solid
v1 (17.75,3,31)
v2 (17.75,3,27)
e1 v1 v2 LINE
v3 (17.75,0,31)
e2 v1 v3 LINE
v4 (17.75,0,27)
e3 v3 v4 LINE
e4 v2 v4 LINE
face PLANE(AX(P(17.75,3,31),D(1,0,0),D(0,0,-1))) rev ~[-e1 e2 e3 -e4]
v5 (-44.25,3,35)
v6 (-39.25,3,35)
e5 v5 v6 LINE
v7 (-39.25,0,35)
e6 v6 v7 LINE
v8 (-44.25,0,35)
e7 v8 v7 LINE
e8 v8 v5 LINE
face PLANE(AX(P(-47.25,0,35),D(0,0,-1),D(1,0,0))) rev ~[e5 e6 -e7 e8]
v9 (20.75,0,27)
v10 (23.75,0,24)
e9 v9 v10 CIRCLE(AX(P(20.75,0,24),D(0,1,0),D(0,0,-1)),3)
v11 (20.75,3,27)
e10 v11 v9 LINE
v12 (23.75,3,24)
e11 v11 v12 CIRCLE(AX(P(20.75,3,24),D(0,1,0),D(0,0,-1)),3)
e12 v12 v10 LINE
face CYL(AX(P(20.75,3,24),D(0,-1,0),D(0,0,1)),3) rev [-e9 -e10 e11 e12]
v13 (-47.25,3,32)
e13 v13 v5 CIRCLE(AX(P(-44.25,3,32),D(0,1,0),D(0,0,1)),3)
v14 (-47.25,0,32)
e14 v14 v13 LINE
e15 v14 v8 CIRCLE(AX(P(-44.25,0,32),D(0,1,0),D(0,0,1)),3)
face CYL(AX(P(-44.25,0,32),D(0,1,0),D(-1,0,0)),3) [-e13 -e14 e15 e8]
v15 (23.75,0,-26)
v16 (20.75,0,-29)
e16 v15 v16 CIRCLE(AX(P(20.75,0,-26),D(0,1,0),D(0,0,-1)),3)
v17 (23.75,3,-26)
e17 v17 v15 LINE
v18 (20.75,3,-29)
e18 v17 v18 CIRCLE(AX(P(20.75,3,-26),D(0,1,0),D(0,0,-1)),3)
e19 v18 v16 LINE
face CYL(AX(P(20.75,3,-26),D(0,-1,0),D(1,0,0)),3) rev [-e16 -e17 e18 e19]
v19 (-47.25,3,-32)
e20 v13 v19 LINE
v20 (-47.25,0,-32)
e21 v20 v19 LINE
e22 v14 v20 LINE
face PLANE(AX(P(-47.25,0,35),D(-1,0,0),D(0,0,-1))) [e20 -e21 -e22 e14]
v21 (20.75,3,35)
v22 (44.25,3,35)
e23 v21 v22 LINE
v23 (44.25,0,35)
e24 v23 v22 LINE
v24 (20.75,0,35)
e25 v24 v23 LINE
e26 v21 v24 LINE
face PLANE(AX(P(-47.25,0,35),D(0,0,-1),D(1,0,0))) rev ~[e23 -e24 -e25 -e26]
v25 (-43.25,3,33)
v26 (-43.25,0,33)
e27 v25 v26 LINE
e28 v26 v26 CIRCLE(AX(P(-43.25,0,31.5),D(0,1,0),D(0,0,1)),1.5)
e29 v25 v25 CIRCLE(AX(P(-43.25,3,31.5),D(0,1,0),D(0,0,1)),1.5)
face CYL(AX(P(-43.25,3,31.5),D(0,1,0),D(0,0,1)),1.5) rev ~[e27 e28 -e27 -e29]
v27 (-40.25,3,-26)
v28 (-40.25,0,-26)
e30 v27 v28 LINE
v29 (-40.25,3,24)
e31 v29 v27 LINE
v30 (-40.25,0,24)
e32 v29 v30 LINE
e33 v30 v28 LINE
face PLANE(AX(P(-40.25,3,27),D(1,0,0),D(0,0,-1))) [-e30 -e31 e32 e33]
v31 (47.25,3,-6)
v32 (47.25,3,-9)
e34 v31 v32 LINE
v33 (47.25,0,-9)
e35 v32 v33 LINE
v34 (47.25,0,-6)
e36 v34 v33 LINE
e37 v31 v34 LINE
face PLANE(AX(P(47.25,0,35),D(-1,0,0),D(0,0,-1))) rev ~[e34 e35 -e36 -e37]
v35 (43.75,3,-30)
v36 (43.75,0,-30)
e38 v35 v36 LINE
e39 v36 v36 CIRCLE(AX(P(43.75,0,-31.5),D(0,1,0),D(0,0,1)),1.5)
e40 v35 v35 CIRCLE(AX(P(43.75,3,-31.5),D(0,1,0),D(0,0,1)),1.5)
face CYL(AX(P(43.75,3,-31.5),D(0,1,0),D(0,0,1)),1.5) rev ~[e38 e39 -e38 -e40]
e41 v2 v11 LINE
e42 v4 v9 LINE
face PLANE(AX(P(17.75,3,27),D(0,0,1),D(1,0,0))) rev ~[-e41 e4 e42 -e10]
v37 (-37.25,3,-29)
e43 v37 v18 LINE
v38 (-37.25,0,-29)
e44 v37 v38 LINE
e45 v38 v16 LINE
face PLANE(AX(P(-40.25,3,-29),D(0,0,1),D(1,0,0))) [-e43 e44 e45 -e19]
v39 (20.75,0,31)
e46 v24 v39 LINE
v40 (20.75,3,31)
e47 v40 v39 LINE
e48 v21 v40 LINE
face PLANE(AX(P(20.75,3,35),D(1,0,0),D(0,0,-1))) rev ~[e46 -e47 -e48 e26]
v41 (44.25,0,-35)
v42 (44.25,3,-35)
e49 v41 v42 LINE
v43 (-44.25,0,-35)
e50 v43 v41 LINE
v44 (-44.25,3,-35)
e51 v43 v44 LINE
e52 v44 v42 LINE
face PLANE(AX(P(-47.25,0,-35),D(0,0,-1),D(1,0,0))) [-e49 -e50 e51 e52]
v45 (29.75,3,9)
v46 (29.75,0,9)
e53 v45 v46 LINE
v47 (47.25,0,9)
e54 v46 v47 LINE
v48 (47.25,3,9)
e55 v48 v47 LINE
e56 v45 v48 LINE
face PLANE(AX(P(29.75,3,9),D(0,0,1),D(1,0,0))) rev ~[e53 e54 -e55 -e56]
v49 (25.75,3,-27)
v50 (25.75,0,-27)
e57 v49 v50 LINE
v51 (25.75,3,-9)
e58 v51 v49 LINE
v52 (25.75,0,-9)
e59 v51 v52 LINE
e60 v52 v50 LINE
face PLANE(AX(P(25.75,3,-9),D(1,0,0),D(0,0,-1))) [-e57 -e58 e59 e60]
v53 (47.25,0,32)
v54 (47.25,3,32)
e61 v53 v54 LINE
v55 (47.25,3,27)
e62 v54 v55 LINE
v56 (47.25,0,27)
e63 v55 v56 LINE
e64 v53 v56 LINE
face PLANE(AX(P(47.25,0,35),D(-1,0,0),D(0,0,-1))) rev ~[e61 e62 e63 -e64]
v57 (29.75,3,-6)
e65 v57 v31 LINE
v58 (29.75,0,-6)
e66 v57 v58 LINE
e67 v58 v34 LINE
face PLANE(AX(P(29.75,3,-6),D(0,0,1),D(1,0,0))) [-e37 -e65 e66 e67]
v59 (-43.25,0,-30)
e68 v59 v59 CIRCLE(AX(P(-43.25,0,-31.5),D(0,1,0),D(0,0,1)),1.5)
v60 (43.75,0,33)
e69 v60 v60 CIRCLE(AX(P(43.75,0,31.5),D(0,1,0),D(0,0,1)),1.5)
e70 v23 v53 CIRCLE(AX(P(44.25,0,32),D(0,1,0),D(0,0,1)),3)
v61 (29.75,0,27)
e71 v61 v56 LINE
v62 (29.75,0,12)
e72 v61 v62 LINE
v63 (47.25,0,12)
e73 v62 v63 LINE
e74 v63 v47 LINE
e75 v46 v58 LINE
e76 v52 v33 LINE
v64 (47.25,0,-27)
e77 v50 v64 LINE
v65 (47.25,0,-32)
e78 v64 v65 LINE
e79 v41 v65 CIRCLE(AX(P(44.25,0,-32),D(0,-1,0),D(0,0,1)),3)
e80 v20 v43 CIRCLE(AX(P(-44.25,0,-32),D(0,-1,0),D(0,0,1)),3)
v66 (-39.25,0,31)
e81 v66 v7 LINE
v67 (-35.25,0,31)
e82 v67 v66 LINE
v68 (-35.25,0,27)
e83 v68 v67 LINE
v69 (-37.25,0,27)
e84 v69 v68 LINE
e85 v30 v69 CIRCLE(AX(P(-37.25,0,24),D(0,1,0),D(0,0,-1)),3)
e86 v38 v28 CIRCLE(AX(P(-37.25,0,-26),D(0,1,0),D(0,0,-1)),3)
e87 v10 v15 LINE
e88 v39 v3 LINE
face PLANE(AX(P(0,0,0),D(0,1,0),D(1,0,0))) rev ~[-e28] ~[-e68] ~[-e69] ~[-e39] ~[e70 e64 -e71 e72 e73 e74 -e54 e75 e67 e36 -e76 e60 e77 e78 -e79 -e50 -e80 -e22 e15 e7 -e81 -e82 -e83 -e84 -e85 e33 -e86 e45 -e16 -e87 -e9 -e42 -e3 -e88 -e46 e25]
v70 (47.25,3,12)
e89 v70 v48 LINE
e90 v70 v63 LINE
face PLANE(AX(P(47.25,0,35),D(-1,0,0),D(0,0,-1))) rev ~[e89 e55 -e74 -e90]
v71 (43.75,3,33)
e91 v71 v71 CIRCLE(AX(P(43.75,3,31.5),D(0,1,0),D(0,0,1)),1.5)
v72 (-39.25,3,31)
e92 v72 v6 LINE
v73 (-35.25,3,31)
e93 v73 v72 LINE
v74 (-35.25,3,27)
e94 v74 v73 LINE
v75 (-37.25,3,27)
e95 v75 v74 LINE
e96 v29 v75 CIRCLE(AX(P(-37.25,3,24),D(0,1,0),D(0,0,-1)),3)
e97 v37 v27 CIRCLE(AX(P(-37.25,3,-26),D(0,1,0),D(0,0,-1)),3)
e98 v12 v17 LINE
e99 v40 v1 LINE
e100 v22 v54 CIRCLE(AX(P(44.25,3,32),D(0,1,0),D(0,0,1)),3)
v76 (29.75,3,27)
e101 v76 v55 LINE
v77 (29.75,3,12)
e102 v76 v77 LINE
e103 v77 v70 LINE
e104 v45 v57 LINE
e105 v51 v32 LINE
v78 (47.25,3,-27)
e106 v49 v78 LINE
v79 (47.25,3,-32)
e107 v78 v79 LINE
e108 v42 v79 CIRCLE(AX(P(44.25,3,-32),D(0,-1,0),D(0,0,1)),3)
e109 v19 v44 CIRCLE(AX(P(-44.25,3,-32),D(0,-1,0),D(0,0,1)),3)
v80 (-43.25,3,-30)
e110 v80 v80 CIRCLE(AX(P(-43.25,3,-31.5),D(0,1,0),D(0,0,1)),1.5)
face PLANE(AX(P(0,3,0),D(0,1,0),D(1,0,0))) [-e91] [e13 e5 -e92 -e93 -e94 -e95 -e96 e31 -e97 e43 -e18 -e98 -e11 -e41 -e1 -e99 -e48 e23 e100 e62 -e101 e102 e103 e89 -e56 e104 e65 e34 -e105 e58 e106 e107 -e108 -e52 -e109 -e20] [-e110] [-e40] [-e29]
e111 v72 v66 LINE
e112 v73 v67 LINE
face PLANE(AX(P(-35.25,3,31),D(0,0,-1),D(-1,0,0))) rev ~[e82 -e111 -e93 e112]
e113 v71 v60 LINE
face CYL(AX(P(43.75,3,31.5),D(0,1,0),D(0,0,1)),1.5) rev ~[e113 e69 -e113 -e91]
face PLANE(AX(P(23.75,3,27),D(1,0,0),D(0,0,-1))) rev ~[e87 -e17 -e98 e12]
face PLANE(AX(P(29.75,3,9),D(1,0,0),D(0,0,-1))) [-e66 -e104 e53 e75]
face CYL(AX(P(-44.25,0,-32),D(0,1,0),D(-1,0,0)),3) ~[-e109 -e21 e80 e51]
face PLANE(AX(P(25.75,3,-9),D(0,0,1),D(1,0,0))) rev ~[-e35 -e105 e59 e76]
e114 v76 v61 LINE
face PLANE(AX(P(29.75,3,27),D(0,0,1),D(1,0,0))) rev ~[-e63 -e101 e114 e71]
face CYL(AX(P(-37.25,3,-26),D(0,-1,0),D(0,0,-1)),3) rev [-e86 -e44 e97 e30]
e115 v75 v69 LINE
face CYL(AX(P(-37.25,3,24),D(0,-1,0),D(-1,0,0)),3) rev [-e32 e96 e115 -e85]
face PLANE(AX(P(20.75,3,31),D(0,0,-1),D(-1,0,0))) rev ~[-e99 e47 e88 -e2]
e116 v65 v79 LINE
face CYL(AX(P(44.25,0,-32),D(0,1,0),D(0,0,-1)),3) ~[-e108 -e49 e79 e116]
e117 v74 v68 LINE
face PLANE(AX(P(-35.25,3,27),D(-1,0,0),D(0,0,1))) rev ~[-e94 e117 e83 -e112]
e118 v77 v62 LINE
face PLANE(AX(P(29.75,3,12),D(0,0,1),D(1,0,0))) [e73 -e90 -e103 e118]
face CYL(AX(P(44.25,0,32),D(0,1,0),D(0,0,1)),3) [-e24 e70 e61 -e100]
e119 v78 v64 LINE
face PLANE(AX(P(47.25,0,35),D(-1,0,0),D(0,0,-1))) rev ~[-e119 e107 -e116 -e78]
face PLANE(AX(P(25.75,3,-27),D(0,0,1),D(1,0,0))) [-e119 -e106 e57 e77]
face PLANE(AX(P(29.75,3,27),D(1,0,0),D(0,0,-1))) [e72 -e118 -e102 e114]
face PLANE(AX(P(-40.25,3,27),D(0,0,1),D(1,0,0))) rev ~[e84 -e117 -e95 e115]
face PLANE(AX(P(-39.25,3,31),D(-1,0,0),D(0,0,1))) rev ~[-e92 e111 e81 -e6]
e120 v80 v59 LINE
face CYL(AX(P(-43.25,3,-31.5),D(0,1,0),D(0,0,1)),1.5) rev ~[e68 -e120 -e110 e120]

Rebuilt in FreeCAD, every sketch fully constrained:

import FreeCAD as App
import Part
import Sketcher
Q = App.Units.Quantity


def edges_at(feature, points):
    """Names of the edges that pass closest to the given points."""
    edges = feature.Shape.Edges
    near = lambda p: min(range(len(edges)), key=lambda i: edges[i].distToShape(Part.Vertex(*p))[0])
    return sorted({f"Edge{near(p) + 1}" for p in points})

doc = App.newDocument("Part")
body = doc.addObject("PartDesign::Body", "Body")

sketch1 = body.newObject("Sketcher::SketchObject", "Sketch")
sketch1.AttachmentSupport = (doc.getObject("XZ_Plane"), [""])
sketch1.MapMode = "FlatFace"
sketch1.addGeometry(Part.LineSegment(App.Vector(-47, -35, 0), App.Vector(-47, 35, 0)), False)
sketch1.addGeometry(Part.LineSegment(App.Vector(-47, 35, 0), App.Vector(47, 35, 0)), False)
sketch1.addGeometry(Part.LineSegment(App.Vector(47, 35, 0), App.Vector(47, -35, 0)), False)
sketch1.addGeometry(Part.LineSegment(App.Vector(47, -35, 0), App.Vector(-47, -35, 0)), False)
sketch1.addConstraint(Sketcher.Constraint("Coincident", 0, 2, 1, 1))
sketch1.addConstraint(Sketcher.Constraint("Coincident", 1, 2, 2, 1))
sketch1.addConstraint(Sketcher.Constraint("Coincident", 2, 2, 3, 1))
sketch1.addConstraint(Sketcher.Constraint("Coincident", 3, 2, 0, 1))
sketch1.addConstraint(Sketcher.Constraint("Vertical", 0))
sketch1.addConstraint(Sketcher.Constraint("Horizontal", 1))
sketch1.addConstraint(Sketcher.Constraint("Vertical", 2))
sketch1.addConstraint(Sketcher.Constraint("Horizontal", 3))
sketch1.addConstraint(Sketcher.Constraint("Symmetric", 0, 2, 2, 2, -1, 1))
sketch1.addConstraint(Sketcher.Constraint("DistanceY", 0, 1, 0, 2, Q("70 mm")))
sketch1.addConstraint(Sketcher.Constraint("DistanceX", 1, 1, 1, 2, Q("94.5 mm")))
pad1 = body.newObject("PartDesign::Pad", "Pad")
pad1.Profile = sketch1
pad1.Length = 3
pad1.Reversed = True

sketch2 = body.newObject("Sketcher::SketchObject", "Sketch001")
sketch2.AttachmentSupport = (doc.getObject("XZ_Plane"), [""])
sketch2.MapMode = "FlatFace"
sketch2.AttachmentOffset = App.Placement(App.Vector(0, 0, -3), App.Rotation())
sketch2.addGeometry(Part.Circle(App.Vector(43.8, -31.5, 0), App.Vector(0, 0, 1), 1.5), False)
sketch2.addGeometry(Part.Circle(App.Vector(-43.2, -31.5, 0), App.Vector(0, 0, 1), 1.5), False)
sketch2.addGeometry(Part.Circle(App.Vector(-43.2, 31.5, 0), App.Vector(0, 0, 1), 1.5), False)
sketch2.addGeometry(Part.Circle(App.Vector(43.8, 31.5, 0), App.Vector(0, 0, 1), 1.5), False)
sketch2.addConstraint(Sketcher.Constraint("Equal", 0, 1))
sketch2.addConstraint(Sketcher.Constraint("Equal", 1, 2))
sketch2.addConstraint(Sketcher.Constraint("Equal", 2, 3))
sketch2.addConstraint(Sketcher.Constraint("Symmetric", 1, 3, 2, 3, -1))
sketch2.addConstraint(Sketcher.Constraint("Symmetric", 0, 3, 3, 3, -1))
sketch2.addConstraint(Sketcher.Constraint("Horizontal", 0, 3, 1, 3))
sketch2.addConstraint(Sketcher.Constraint("Diameter", 0, Q("3 mm")))
sketch2.addConstraint(Sketcher.Constraint("DistanceX", 1, 3, 0, 3, Q("87 mm")))
sketch2.addConstraint(Sketcher.Constraint("DistanceY", 1, 3, 2, 3, Q("63 mm")))
sketch2.addConstraint(Sketcher.Constraint("DistanceX", -1, 1, 0, 3, Q("43.75 mm")))
pocket1 = body.newObject("PartDesign::Pocket", "Pocket")
pocket1.Profile = sketch2
pocket1.Type = "ThroughAll"
pocket1.Reversed = True
doc.recompute()

fillet = body.newObject("PartDesign::Fillet", "Fillet")
fillet.Base = (pocket1, edges_at(pocket1, [
    (47.25, 1.5, 35),
    (-47.25, 1.5, 35),
    (-47.25, 1.5, -35),
    (47.25, 1.5, -35),
]))
fillet.Radius = 3

sketch3 = body.newObject("Sketcher::SketchObject", "Sketch002")
sketch3.AttachmentSupport = (doc.getObject("XZ_Plane"), [""])
sketch3.MapMode = "FlatFace"
sketch3.AttachmentOffset = App.Placement(App.Vector(0, 0, -3), App.Rotation())
sketch3.addGeometry(Part.LineSegment(App.Vector(-40.2, -29, 0), App.Vector(-40.2, 27, 0)), False)
sketch3.addGeometry(Part.LineSegment(App.Vector(-40.2, 27, 0), App.Vector(-35.2, 27, 0)), False)
sketch3.addGeometry(Part.LineSegment(App.Vector(-35.2, 27, 0), App.Vector(-35.2, 31, 0)), False)
sketch3.addGeometry(Part.LineSegment(App.Vector(-35.2, 31, 0), App.Vector(-39.2, 31, 0)), False)
sketch3.addGeometry(Part.LineSegment(App.Vector(-39.2, 31, 0), App.Vector(-39.2, 35, 0)), False)
sketch3.addGeometry(Part.LineSegment(App.Vector(-39.2, 35, 0), App.Vector(20.8, 35, 0)), False)
sketch3.addGeometry(Part.LineSegment(App.Vector(20.8, 35, 0), App.Vector(20.8, 31, 0)), False)
sketch3.addGeometry(Part.LineSegment(App.Vector(20.8, 31, 0), App.Vector(17.8, 31, 0)), False)
sketch3.addGeometry(Part.LineSegment(App.Vector(17.8, 31, 0), App.Vector(17.8, 27, 0)), False)
sketch3.addGeometry(Part.LineSegment(App.Vector(17.8, 27, 0), App.Vector(23.8, 27, 0)), False)
sketch3.addGeometry(Part.LineSegment(App.Vector(23.8, 27, 0), App.Vector(23.8, -29, 0)), False)
sketch3.addGeometry(Part.LineSegment(App.Vector(23.8, -29, 0), App.Vector(-40.2, -29, 0)), False)
sketch3.addGeometry(Part.LineSegment(App.Vector(25.8, -27, 0), App.Vector(25.8, -9, 0)), False)
sketch3.addGeometry(Part.LineSegment(App.Vector(25.8, -9, 0), App.Vector(47.2, -9, 0)), False)
sketch3.addGeometry(Part.LineSegment(App.Vector(47.2, -9, 0), App.Vector(47.2, -27, 0)), False)
sketch3.addGeometry(Part.LineSegment(App.Vector(47.2, -27, 0), App.Vector(25.8, -27, 0)), False)
sketch3.addGeometry(Part.LineSegment(App.Vector(29.8, -6, 0), App.Vector(29.8, 9, 0)), False)
sketch3.addGeometry(Part.LineSegment(App.Vector(29.8, 9, 0), App.Vector(47.2, 9, 0)), False)
sketch3.addGeometry(Part.LineSegment(App.Vector(47.2, 9, 0), App.Vector(47.2, -6, 0)), False)
sketch3.addGeometry(Part.LineSegment(App.Vector(47.2, -6, 0), App.Vector(29.8, -6, 0)), False)
sketch3.addGeometry(Part.LineSegment(App.Vector(29.8, 12, 0), App.Vector(29.8, 27, 0)), False)
sketch3.addGeometry(Part.LineSegment(App.Vector(29.8, 27, 0), App.Vector(47.2, 27, 0)), False)
sketch3.addGeometry(Part.LineSegment(App.Vector(47.2, 27, 0), App.Vector(47.2, 12, 0)), False)
sketch3.addGeometry(Part.LineSegment(App.Vector(47.2, 12, 0), App.Vector(29.8, 12, 0)), False)
sketch3.addConstraint(Sketcher.Constraint("Coincident", 0, 2, 1, 1))
sketch3.addConstraint(Sketcher.Constraint("Coincident", 1, 2, 2, 1))
sketch3.addConstraint(Sketcher.Constraint("Coincident", 2, 2, 3, 1))
sketch3.addConstraint(Sketcher.Constraint("Coincident", 3, 2, 4, 1))
sketch3.addConstraint(Sketcher.Constraint("Coincident", 4, 2, 5, 1))
sketch3.addConstraint(Sketcher.Constraint("Coincident", 5, 2, 6, 1))
sketch3.addConstraint(Sketcher.Constraint("Coincident", 6, 2, 7, 1))
sketch3.addConstraint(Sketcher.Constraint("Coincident", 7, 2, 8, 1))
sketch3.addConstraint(Sketcher.Constraint("Coincident", 8, 2, 9, 1))
sketch3.addConstraint(Sketcher.Constraint("Coincident", 9, 2, 10, 1))
sketch3.addConstraint(Sketcher.Constraint("Coincident", 10, 2, 11, 1))
sketch3.addConstraint(Sketcher.Constraint("Coincident", 11, 2, 0, 1))
sketch3.addConstraint(Sketcher.Constraint("Coincident", 12, 2, 13, 1))
sketch3.addConstraint(Sketcher.Constraint("Coincident", 13, 2, 14, 1))
sketch3.addConstraint(Sketcher.Constraint("Coincident", 14, 2, 15, 1))
sketch3.addConstraint(Sketcher.Constraint("Coincident", 15, 2, 12, 1))
sketch3.addConstraint(Sketcher.Constraint("Coincident", 16, 2, 17, 1))
sketch3.addConstraint(Sketcher.Constraint("Coincident", 17, 2, 18, 1))
sketch3.addConstraint(Sketcher.Constraint("Coincident", 18, 2, 19, 1))
sketch3.addConstraint(Sketcher.Constraint("Coincident", 19, 2, 16, 1))
sketch3.addConstraint(Sketcher.Constraint("Coincident", 20, 2, 21, 1))
sketch3.addConstraint(Sketcher.Constraint("Coincident", 21, 2, 22, 1))
sketch3.addConstraint(Sketcher.Constraint("Coincident", 22, 2, 23, 1))
sketch3.addConstraint(Sketcher.Constraint("Coincident", 23, 2, 20, 1))
sketch3.addConstraint(Sketcher.Constraint("Vertical", 0))
sketch3.addConstraint(Sketcher.Constraint("Horizontal", 1))
sketch3.addConstraint(Sketcher.Constraint("Vertical", 2))
sketch3.addConstraint(Sketcher.Constraint("Horizontal", 3))
sketch3.addConstraint(Sketcher.Constraint("Vertical", 4))
sketch3.addConstraint(Sketcher.Constraint("Horizontal", 5))
sketch3.addConstraint(Sketcher.Constraint("Vertical", 6))
sketch3.addConstraint(Sketcher.Constraint("Horizontal", 7))
sketch3.addConstraint(Sketcher.Constraint("Vertical", 8))
sketch3.addConstraint(Sketcher.Constraint("Horizontal", 9))
sketch3.addConstraint(Sketcher.Constraint("Vertical", 10))
sketch3.addConstraint(Sketcher.Constraint("Horizontal", 11))
sketch3.addConstraint(Sketcher.Constraint("Vertical", 12))
sketch3.addConstraint(Sketcher.Constraint("Horizontal", 13))
sketch3.addConstraint(Sketcher.Constraint("Vertical", 14))
sketch3.addConstraint(Sketcher.Constraint("Horizontal", 15))
sketch3.addConstraint(Sketcher.Constraint("Vertical", 16))
sketch3.addConstraint(Sketcher.Constraint("Horizontal", 17))
sketch3.addConstraint(Sketcher.Constraint("Vertical", 18))
sketch3.addConstraint(Sketcher.Constraint("Horizontal", 19))
sketch3.addConstraint(Sketcher.Constraint("Vertical", 20))
sketch3.addConstraint(Sketcher.Constraint("Horizontal", 21))
sketch3.addConstraint(Sketcher.Constraint("Vertical", 22))
sketch3.addConstraint(Sketcher.Constraint("Horizontal", 23))
sketch3.addConstraint(Sketcher.Constraint("Symmetric", 13, 2, 17, 2, -1))
sketch3.addConstraint(Sketcher.Constraint("Symmetric", 14, 2, 21, 2, -1))
sketch3.addConstraint(Sketcher.Constraint("Horizontal", 3, 2, 6, 2))
sketch3.addConstraint(Sketcher.Constraint("Horizontal", 1, 2, 8, 2))
sketch3.addConstraint(Sketcher.Constraint("Horizontal", 9, 2, 20, 2))
sketch3.addConstraint(Sketcher.Constraint("Vertical", 19, 2, 20, 2))
sketch3.addConstraint(Sketcher.Constraint("Equal", 3, 2))
sketch3.addConstraint(Sketcher.Constraint("Equal", 2, 4))
sketch3.addConstraint(Sketcher.Constraint("Equal", 18, 20))
sketch3.addConstraint(Sketcher.Constraint("DistanceX", 1, 1, 1, 2, Q("5 mm")))
sketch3.addConstraint(Sketcher.Constraint("DistanceX", 3, 2, 3, 1, Q("4 mm")))
sketch3.addConstraint(Sketcher.Constraint("DistanceX", 5, 1, 5, 2, Q("60 mm")))
sketch3.addConstraint(Sketcher.Constraint("DistanceX", 7, 2, 7, 1, Q("3 mm")))
sketch3.addConstraint(Sketcher.Constraint("DistanceX", 9, 1, 9, 2, Q("6 mm")))
sketch3.addConstraint(Sketcher.Constraint("DistanceY", 0, 1, 0, 2, Q("56 mm")))
sketch3.addConstraint(Sketcher.Constraint("DistanceY", 12, 1, 12, 2, Q("18 mm")))
sketch3.addConstraint(Sketcher.Constraint("DistanceY", 16, 1, 16, 2, Q("15 mm")))
sketch3.addConstraint(Sketcher.Constraint("DistanceX", 13, 1, 13, 2, Q("21.5 mm")))
sketch3.addConstraint(Sketcher.Constraint("DistanceX", 17, 1, 17, 2, Q("17.5 mm")))
sketch3.addConstraint(Sketcher.Constraint("DistanceY", -1, 1, 0, 2, Q("27 mm")))
sketch3.addConstraint(Sketcher.Constraint("DistanceX", 10, 2, 12, 2, Q("2 mm")))
sketch3.addConstraint(Sketcher.Constraint("DistanceX", 0, 2, -1, 1, Q("40.25 mm")))
pocket2 = body.newObject("PartDesign::Pocket", "Pocket001")
pocket2.Profile = sketch3
pocket2.Type = "ThroughAll"
pocket2.Reversed = True
doc.recompute()

fillet2 = body.newObject("PartDesign::Fillet", "Fillet001")
fillet2.Base = (pocket2, edges_at(pocket2, [
    (-40.25, 1.5, 27),
    (-40.25, 1.5, -29),
    (23.75, 1.5, -29),
    (23.75, 1.5, 27),
]))
fillet2.Radius = 3

doc.recompute()
